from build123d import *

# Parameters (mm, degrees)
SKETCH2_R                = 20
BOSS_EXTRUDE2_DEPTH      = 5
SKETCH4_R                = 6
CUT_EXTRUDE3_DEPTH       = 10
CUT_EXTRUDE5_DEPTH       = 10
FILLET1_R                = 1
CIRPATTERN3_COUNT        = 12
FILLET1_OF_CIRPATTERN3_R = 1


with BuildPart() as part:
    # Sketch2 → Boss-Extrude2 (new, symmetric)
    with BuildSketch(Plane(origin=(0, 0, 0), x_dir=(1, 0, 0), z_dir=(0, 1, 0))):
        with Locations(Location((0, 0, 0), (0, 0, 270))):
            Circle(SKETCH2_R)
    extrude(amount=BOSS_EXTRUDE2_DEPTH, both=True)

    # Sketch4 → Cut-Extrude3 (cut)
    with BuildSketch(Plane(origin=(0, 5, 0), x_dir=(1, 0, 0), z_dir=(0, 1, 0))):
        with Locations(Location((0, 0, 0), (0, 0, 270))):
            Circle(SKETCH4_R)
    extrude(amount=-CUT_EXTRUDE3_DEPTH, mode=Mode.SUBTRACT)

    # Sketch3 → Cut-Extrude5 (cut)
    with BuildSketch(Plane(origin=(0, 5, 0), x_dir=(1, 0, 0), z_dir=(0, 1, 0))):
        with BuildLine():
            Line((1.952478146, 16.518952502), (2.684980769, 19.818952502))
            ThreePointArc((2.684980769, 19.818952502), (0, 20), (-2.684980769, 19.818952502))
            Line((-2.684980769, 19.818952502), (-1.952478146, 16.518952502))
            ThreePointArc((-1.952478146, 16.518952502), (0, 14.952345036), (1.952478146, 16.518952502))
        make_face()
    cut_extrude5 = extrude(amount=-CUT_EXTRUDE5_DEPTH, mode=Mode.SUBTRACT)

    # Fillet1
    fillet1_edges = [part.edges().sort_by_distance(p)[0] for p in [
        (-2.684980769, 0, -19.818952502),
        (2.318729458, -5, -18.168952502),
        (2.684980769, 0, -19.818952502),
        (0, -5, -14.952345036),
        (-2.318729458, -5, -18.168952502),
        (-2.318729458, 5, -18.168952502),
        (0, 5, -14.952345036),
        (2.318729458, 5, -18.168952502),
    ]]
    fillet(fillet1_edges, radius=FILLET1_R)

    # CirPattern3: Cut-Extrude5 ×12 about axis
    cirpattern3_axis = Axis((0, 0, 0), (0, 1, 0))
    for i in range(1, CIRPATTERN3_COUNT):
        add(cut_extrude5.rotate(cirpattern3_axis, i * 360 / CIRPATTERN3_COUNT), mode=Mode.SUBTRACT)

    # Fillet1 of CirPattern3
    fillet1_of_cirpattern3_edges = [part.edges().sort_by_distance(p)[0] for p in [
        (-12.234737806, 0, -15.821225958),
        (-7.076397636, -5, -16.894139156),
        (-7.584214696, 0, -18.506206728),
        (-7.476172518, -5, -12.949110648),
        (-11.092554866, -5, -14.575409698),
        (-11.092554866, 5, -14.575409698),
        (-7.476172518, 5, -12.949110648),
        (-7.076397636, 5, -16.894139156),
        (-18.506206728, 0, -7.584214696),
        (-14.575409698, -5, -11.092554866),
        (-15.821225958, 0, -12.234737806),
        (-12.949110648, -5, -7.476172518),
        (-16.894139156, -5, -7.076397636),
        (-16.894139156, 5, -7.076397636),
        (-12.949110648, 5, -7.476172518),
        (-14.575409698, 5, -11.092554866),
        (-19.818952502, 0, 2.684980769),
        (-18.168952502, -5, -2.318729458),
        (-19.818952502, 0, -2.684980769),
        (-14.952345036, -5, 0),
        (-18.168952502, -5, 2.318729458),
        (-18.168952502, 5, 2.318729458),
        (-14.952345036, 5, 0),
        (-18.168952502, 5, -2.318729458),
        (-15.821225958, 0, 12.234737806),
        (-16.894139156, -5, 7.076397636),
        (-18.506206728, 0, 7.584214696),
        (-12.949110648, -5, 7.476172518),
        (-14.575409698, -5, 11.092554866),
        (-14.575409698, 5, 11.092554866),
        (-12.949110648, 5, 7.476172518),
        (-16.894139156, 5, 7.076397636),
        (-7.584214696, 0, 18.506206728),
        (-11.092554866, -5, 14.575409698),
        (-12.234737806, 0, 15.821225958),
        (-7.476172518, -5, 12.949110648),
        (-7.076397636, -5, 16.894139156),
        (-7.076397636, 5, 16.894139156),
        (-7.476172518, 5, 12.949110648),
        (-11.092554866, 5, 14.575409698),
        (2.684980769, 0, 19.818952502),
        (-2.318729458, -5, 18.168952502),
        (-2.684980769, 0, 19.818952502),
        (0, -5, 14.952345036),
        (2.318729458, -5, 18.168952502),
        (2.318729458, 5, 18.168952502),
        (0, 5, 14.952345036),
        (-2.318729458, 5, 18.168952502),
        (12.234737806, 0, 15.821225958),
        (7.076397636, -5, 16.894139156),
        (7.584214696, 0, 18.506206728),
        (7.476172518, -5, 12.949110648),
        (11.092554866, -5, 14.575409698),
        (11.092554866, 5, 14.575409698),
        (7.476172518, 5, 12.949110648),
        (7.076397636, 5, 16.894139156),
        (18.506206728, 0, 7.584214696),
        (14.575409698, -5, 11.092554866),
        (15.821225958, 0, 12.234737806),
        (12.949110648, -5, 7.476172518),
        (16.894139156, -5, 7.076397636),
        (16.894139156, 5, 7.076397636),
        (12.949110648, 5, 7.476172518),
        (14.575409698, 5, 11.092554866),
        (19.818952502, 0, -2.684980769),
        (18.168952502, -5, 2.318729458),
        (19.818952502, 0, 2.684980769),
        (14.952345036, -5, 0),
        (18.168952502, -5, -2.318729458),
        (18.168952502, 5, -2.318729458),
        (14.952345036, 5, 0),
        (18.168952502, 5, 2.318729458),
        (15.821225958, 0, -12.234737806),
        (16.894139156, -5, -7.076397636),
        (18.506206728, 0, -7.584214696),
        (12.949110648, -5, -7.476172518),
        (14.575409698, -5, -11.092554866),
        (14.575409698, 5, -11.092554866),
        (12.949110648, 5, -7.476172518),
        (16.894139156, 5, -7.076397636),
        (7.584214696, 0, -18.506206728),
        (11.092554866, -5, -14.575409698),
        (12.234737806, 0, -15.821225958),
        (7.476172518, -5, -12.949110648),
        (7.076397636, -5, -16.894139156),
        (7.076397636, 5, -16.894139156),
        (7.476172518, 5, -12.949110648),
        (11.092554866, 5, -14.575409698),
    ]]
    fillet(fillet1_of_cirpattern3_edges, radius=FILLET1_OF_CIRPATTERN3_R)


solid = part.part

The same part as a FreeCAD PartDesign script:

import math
import FreeCAD as App
import Part
import Sketcher
from FreeCAD import Vector


def edges_at(feature, points):
    """Names of the edges that pass closest to the given points."""
    edges = feature.Shape.Edges
    near = lambda p: min(range(len(edges)), key=lambda i: edges[i].distToShape(Part.Vertex(*p))[0])
    return sorted({f"Edge{near(p) + 1}" for p in points})

doc = App.newDocument("Part")
params = doc.addObject("Spreadsheet::Sheet", "Params")
for row, (alias, value) in enumerate([
    ("sketch1_diameter", "40 mm"),
    ("pad1_length", "10 mm"),
    ("sketch2_diameter", "12 mm"),
    ("pocket1_length", "10 mm"),
    ("sketch3_radius", "20 mm"),
    ("sketch3_radius2", "2 mm"),
    ("pocket2_length", "10 mm"),
    ("fillet_radius", "1 mm"),
    ("fillet2_radius", "1 mm"),
], start=1):
    params.set(f"A{row}", alias)
    params.set(f"B{row}", "=" + value)
    params.setAlias(f"B{row}", alias)

body = doc.addObject("PartDesign::Body", "Body")

# Sketch on XZ plane
sketch1 = body.newObject("Sketcher::SketchObject", "Sketch")
sketch1.AttachmentSupport = (doc.getObject("XZ_Plane"), [""])
sketch1.MapMode = "FlatFace"
sketch1.addGeometry(Part.Circle(Vector(0, 0, 0), Vector(0, 0, 1), 20), False)
sketch1.addConstraint([
    Sketcher.Constraint("Coincident", 0, 3, -1, 1),
    Sketcher.Constraint("Diameter", 0, 40.0),
])
sketch1.setExpression("Constraints[1]", "Params.sketch1_diameter")
pad1 = body.newObject("PartDesign::Pad", "Pad")
pad1.Profile = sketch1
pad1.setExpression("Length", "Params.pad1_length")
pad1.Midplane = True

# Sketch on XZ plane
sketch2 = body.newObject("Sketcher::SketchObject", "Sketch001")
sketch2.AttachmentSupport = (doc.getObject("XZ_Plane"), [""])
sketch2.MapMode = "FlatFace"
sketch2.AttachmentOffset = App.Placement(Vector(0, 0, -5), App.Rotation())
sketch2.addGeometry(Part.Circle(Vector(0, 0, 0), Vector(0, 0, 1), 6), False)
sketch2.addConstraint([
    Sketcher.Constraint("Coincident", 0, 3, -1, 1),
    Sketcher.Constraint("Diameter", 0, 12.0),
])
sketch2.setExpression("Constraints[1]", "Params.sketch2_diameter")
pocket1 = body.newObject("PartDesign::Pocket", "Pocket")
pocket1.Profile = sketch2
pocket1.setExpression("Length", "Params.pocket1_length")
pocket1.Reversed = True

# Sketch on XZ plane
sketch3 = body.newObject("Sketcher::SketchObject", "Sketch002")
sketch3.AttachmentSupport = (doc.getObject("XZ_Plane"), [""])
sketch3.MapMode = "FlatFace"
sketch3.AttachmentOffset = App.Placement(Vector(0, 0, -5), App.Rotation())
sketch3.addGeometry([
    Part.LineSegment(Vector(2, -16.5, 0), Vector(2.7, -19.8, 0)),
    Part.ArcOfCircle(Part.Circle(Vector(0, 0, 0), Vector(0, 0, 1), 20), math.radians(-97.72), math.radians(-82.28)),
    Part.LineSegment(Vector(-2.7, -19.8, 0), Vector(-2, -16.5, 0)),
    Part.ArcOfCircle(Part.Circle(Vector(0, -17, 0), Vector(0, 0, 1), 2), math.radians(13), math.radians(167)),
], False)
sketch3.addConstraint([
    Sketcher.Constraint("Coincident", 0, 2, 1, 2),
    Sketcher.Constraint("Coincident", 1, 1, 2, 1),
    Sketcher.Constraint("Tangent", 2, 2, 3, 2),
    Sketcher.Constraint("Tangent", 3, 1, 0, 1),
    Sketcher.Constraint("Coincident", 1, 3, -1, 1),
    Sketcher.Constraint("Symmetric", 2, 2, 3, 1, -2),
    Sketcher.Constraint("Radius", 1, 20.0),
    Sketcher.Constraint("Radius", 3, 2.0),
    Sketcher.Constraint("DistanceY", 1, 1, 2, 2, 3.3),
    Sketcher.Constraint("Distance", 0, 3.38032),
])
sketch3.setExpression("Constraints[6]", "Params.sketch3_radius")
sketch3.setExpression("Constraints[7]", "Params.sketch3_radius2")
pocket2 = body.newObject("PartDesign::Pocket", "Pocket001")
pocket2.Profile = sketch3
pocket2.setExpression("Length", "Params.pocket2_length")
pocket2.Reversed = True
doc.recompute()

fillet = body.newObject("PartDesign::Fillet", "Fillet")
fillet.Base = (pocket2, edges_at(pocket2, [
    (-2.685, 0, -19.819),
    (2.319, -5, -18.169),
    (2.685, 0, -19.819),
    (0, -5, -14.952),
    (-2.319, -5, -18.169),
    (-2.319, 5, -18.169),
    (0, 5, -14.952),
    (2.319, 5, -18.169),
]))
fillet.setExpression("Radius", "Params.fillet_radius")
doc.recompute()

polarpattern = body.newObject("PartDesign::PolarPattern", "PolarPattern")
polarpattern.Originals = [pocket2]
polarpattern.Axis = (doc.getObject("Y_Axis"), [""])
polarpattern.Angle = 360
polarpattern.Occurrences = 12
body.Tip = polarpattern
doc.recompute()

fillet2 = body.newObject("PartDesign::Fillet", "Fillet001")
fillet2.Base = (polarpattern, edges_at(polarpattern, [
    (-12.235, 0, -15.821),
    (-7.076, -5, -16.894),
    (-7.584, 0, -18.506),
    (-7.476, -5, -12.949),
    (-11.093, -5, -14.575),
    (-11.093, 5, -14.575),
    (-7.476, 5, -12.949),
    (-7.076, 5, -16.894),
    (-18.506, 0, -7.584),
    (-14.575, -5, -11.093),
    (-15.821, 0, -12.235),
    (-12.949, -5, -7.476),
    (-16.894, -5, -7.076),
    (-16.894, 5, -7.076),
    (-12.949, 5, -7.476),
    (-14.575, 5, -11.093),
    (-19.819, 0, 2.685),
    (-18.169, -5, -2.319),
    (-19.819, 0, -2.685),
    (-14.952, -5, 0),
    (-18.169, -5, 2.319),
    (-18.169, 5, 2.319),
    (-14.952, 5, 0),
    (-18.169, 5, -2.319),
    (-15.821, 0, 12.235),
    (-16.894, -5, 7.076),
    (-18.506, 0, 7.584),
    (-12.949, -5, 7.476),
    (-14.575, -5, 11.093),
    (-14.575, 5, 11.093),
    (-12.949, 5, 7.476),
    (-16.894, 5, 7.076),
    (-7.584, 0, 18.506),
    (-11.093, -5, 14.575),
    (-12.235, 0, 15.821),
    (-7.476, -5, 12.949),
    (-7.076, -5, 16.894),
    (-7.076, 5, 16.894),
    (-7.476, 5, 12.949),
    (-11.093, 5, 14.575),
    (2.685, 0, 19.819),
    (-2.319, -5, 18.169),
    (-2.685, 0, 19.819),
    (0, -5, 14.952),
    (2.319, -5, 18.169),
    (2.319, 5, 18.169),
    (0, 5, 14.952),
    (-2.319, 5, 18.169),
    (12.235, 0, 15.821),
    (7.076, -5, 16.894),
    (7.584, 0, 18.506),
    (7.476, -5, 12.949),
    (11.093, -5, 14.575),
    (11.093, 5, 14.575),
    (7.476, 5, 12.949),
    (7.076, 5, 16.894),
    (18.506, 0, 7.584),
    (14.575, -5, 11.093),
    (15.821, 0, 12.235),
    (12.949, -5, 7.476),
    (16.894, -5, 7.076),
    (16.894, 5, 7.076),
    (12.949, 5, 7.476),
    (14.575, 5, 11.093),
    (19.819, 0, -2.685),
    (18.169, -5, 2.319),
    (19.819, 0, 2.685),
    (14.952, -5, 0),
    (18.169, -5, -2.319),
    (18.169, 5, -2.319),
    (14.952, 5, 0),
    (18.169, 5, 2.319),
    (15.821, 0, -12.235),
    (16.894, -5, -7.076),
    (18.506, 0, -7.584),
    (12.949, -5, -7.476),
    (14.575, -5, -11.093),
    (14.575, 5, -11.093),
    (12.949, 5, -7.476),
    (16.894, 5, -7.076),
    (7.584, 0, -18.506),
    (11.093, -5, -14.575),
    (12.235, 0, -15.821),
    (7.476, -5, -12.949),
    (7.076, -5, -16.894),
    (7.076, 5, -16.894),
    (7.476, 5, -12.949),
    (11.093, 5, -14.575),
]))
fillet2.setExpression("Radius", "Params.fillet2_radius")

doc.recompute()
